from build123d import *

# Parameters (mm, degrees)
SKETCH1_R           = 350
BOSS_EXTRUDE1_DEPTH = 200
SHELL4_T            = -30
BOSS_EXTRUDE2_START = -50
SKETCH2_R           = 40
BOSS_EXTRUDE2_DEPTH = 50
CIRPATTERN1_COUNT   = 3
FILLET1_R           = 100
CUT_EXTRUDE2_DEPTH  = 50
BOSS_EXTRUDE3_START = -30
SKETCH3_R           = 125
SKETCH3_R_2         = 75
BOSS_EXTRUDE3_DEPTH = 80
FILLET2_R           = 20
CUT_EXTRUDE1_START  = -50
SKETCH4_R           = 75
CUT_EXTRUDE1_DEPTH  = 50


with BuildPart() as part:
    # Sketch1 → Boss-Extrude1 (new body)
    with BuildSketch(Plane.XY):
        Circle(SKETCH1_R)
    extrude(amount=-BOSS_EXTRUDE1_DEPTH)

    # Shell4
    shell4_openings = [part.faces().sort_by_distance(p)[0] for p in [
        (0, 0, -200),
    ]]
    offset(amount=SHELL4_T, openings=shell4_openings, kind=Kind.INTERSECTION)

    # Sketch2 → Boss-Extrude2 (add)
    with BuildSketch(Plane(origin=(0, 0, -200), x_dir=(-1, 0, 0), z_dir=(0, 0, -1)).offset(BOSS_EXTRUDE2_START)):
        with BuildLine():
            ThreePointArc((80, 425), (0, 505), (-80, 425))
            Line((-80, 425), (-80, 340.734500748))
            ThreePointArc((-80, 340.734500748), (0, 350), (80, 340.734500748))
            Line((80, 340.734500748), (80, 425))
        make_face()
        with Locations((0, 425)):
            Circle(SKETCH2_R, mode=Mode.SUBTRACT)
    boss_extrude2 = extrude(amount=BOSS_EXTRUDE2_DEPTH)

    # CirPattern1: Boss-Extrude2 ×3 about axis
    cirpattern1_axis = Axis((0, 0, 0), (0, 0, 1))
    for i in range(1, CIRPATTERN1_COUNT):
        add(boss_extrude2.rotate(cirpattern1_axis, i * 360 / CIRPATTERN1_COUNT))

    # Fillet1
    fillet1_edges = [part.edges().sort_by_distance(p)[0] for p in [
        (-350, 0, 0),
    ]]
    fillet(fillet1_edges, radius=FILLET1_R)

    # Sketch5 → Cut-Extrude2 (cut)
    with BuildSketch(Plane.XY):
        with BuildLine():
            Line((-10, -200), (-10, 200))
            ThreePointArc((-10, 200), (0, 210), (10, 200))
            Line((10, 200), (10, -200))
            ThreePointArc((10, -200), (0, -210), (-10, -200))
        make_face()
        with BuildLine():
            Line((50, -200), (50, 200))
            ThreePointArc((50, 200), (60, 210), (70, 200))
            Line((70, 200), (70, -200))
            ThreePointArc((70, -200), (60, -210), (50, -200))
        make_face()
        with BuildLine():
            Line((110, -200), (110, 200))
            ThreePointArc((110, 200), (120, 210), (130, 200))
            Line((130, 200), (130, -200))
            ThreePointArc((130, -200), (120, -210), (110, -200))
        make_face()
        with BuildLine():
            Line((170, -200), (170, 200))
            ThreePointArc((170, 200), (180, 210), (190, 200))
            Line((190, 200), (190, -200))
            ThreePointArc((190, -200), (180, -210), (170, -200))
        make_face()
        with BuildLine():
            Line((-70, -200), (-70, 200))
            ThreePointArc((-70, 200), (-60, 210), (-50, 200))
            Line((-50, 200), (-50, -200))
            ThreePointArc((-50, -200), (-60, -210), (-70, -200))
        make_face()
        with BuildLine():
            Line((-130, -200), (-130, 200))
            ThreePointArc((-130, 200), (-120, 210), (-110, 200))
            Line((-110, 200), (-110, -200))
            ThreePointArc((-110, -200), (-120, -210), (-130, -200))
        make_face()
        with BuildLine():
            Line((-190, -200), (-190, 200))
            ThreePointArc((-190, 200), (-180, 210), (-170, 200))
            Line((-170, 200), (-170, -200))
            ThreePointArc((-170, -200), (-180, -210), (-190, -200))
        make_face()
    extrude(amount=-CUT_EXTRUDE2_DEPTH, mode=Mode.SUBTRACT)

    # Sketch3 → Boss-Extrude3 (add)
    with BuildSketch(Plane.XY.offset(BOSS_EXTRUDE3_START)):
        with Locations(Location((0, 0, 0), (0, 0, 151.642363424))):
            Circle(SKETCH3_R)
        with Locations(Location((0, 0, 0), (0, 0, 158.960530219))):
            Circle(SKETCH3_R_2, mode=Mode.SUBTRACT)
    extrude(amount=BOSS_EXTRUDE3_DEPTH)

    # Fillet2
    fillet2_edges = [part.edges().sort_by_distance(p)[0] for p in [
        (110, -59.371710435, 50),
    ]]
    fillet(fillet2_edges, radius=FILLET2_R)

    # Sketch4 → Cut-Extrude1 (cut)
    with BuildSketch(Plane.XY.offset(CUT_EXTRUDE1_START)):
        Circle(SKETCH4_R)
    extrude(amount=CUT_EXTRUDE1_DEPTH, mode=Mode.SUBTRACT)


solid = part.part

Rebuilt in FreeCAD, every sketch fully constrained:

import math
import FreeCAD as App
import Part
import Sketcher
from FreeCAD import Vector


def edges_at(feature, points):
    """Names of the edges that pass closest to the given points."""
    edges = feature.Shape.Edges
    near = lambda p: min(range(len(edges)), key=lambda i: edges[i].distToShape(Part.Vertex(*p))[0])
    return sorted({f"Edge{near(p) + 1}" for p in points})


def faces_at(feature, points):
    """Names of the faces that lie closest to the given points."""
    faces = feature.Shape.Faces
    near = lambda p: min(range(len(faces)), key=lambda i: faces[i].distToShape(Part.Vertex(*p))[0])
    return sorted({f"Face{near(p) + 1}" for p in points})

doc = App.newDocument("Part")
params = doc.addObject("Spreadsheet::Sheet", "Params")
for row, (alias, value) in enumerate([
    ("sketch1_diameter", "700 mm"),
    ("pad1_length", "200 mm"),
    ("thickness_wall", "30 mm"),
    ("sketch2_diameter", "80 mm"),
    ("sketch2_radius", "80 mm"),
    ("sketch2_radius2", "350 mm"),
    ("pad2_length", "50 mm"),
    ("fillet_radius", "100 mm"),
    ("sketch3_radius", "10 mm"),
    ("sketch3_height", "400 mm"),
    ("pocket1_length", "50 mm"),
    ("sketch4_diameter", "250 mm"),
    ("sketch4_diameter2", "150 mm"),
    ("pad3_length", "80 mm"),
    ("fillet2_radius", "20 mm"),
    ("sketch5_diameter", "150 mm"),
    ("pocket2_length", "50 mm"),
], start=1):
    params.set(f"A{row}", alias)
    params.set(f"B{row}", "=" + value)
    params.setAlias(f"B{row}", alias)

body = doc.addObject("PartDesign::Body", "Body")

# Sketch on XY plane
sketch1 = body.newObject("Sketcher::SketchObject", "Sketch")
sketch1.AttachmentSupport = (doc.getObject("XY_Plane"), [""])
sketch1.MapMode = "FlatFace"
sketch1.addGeometry(Part.Circle(Vector(0, 0, 0), Vector(0, 0, 1), 350), False)
sketch1.addConstraint([
    Sketcher.Constraint("Coincident", 0, 3, -1, 1),
    Sketcher.Constraint("Diameter", 0, 700.0),
])
sketch1.setExpression("Constraints[1]", "Params.sketch1_diameter")
pad1 = body.newObject("PartDesign::Pad", "Pad")
pad1.Profile = sketch1
pad1.setExpression("Length", "Params.pad1_length")
pad1.Reversed = True
doc.recompute()

thickness = body.newObject("PartDesign::Thickness", "Thickness")
thickness.Base = (pad1, faces_at(pad1, [(0, 0, -200)]))
thickness.setExpression("Value", "Params.thickness_wall")
thickness.Reversed = True
thickness.Join = "Intersection"

# Sketch on XY plane
sketch2 = body.newObject("Sketcher::SketchObject", "Sketch001")
sketch2.AttachmentSupport = (doc.getObject("XY_Plane"), [""])
sketch2.MapMode = "FlatFace"
sketch2.AttachmentOffset = App.Placement(Vector(0, 0, -150), App.Rotation())
sketch2.addGeometry([
    Part.ArcOfCircle(Part.Circle(Vector(0, 425, 0), Vector(0, 0, 1), 80), math.radians(0), math.radians(180)),  # 0
    Part.LineSegment(Vector(80, 425, 0), Vector(80, 341, 0)),  # 1
    Part.ArcOfCircle(Part.Circle(Vector(0, 0, 0), Vector(0, 0, 1), 350), math.radians(77), math.radians(103)),  # 2
    Part.LineSegment(Vector(-80, 341, 0), Vector(-80, 425, 0)),  # 3
    Part.Circle(Vector(0, 425, 0), Vector(0, 0, 1), 40),  # 4
], False)
sketch2.addConstraint([
    Sketcher.Constraint("Tangent", 0, 1, 1, 1),
    Sketcher.Constraint("Coincident", 1, 2, 2, 1),
    Sketcher.Constraint("Coincident", 2, 2, 3, 1),
    Sketcher.Constraint("Tangent", 3, 2, 0, 2),
    Sketcher.Constraint("Vertical", 1),
    Sketcher.Constraint("Vertical", 3),
    Sketcher.Constraint("Coincident", 2, 3, -1, 1),
    Sketcher.Constraint("Coincident", 4, 3, 0, 3),
    Sketcher.Constraint("PointOnObject", 0, 3, -2),
    Sketcher.Constraint("Diameter", 4, 80.0),
    Sketcher.Constraint("Radius", 0, 80.0),
    Sketcher.Constraint("Radius", 2, 350.0),
    Sketcher.Constraint("DistanceY", -1, 1, 0, 3, 425.0),
])
sketch2.setExpression("Constraints[9]", "Params.sketch2_diameter")
sketch2.setExpression("Constraints[10]", "Params.sketch2_radius")
sketch2.setExpression("Constraints[11]", "Params.sketch2_radius2")
pad2 = body.newObject("PartDesign::Pad", "Pad001")
pad2.Profile = sketch2
pad2.setExpression("Length", "Params.pad2_length")
pad2.Reversed = True
doc.recompute()

polarpattern = body.newObject("PartDesign::PolarPattern", "PolarPattern")
polarpattern.Originals = [pad2]
polarpattern.Axis = (doc.getObject("Z_Axis"), [""])
polarpattern.Angle = 360
polarpattern.Occurrences = 3
body.Tip = polarpattern
doc.recompute()

fillet = body.newObject("PartDesign::Fillet", "Fillet")
fillet.Base = (polarpattern, edges_at(polarpattern, [(-350, 0, 0)]))
fillet.setExpression("Radius", "Params.fillet_radius")

# Sketch on XY plane
sketch3 = body.newObject("Sketcher::SketchObject", "Sketch002")
sketch3.AttachmentSupport = (doc.getObject("XY_Plane"), [""])
sketch3.MapMode = "FlatFace"
sketch3.addGeometry([
    Part.LineSegment(Vector(-10, 200, 0), Vector(-10, -200, 0)),  # 0
    Part.ArcOfCircle(Part.Circle(Vector(0, -200, 0), Vector(0, 0, 1), 10), math.radians(180), math.radians(360)),  # 1
    Part.LineSegment(Vector(10, -200, 0), Vector(10, 200, 0)),  # 2
    Part.ArcOfCircle(Part.Circle(Vector(0, 200, 0), Vector(0, 0, 1), 10), math.radians(0), math.radians(180)),  # 3
    Part.LineSegment(Vector(50, 200, 0), Vector(50, -200, 0)),  # 4
    Part.ArcOfCircle(Part.Circle(Vector(60, -200, 0), Vector(0, 0, 1), 10), math.radians(180), math.radians(360)),  # 5
    Part.LineSegment(Vector(70, -200, 0), Vector(70, 200, 0)),  # 6
    Part.ArcOfCircle(Part.Circle(Vector(60, 200, 0), Vector(0, 0, 1), 10), math.radians(0), math.radians(180)),  # 7
    Part.LineSegment(Vector(110, 200, 0), Vector(110, -200, 0)),  # 8
    Part.ArcOfCircle(Part.Circle(Vector(120, -200, 0), Vector(0, 0, 1), 10), math.radians(180), math.radians(360)),  # 9
    Part.LineSegment(Vector(130, -200, 0), Vector(130, 200, 0)),  # 10
    Part.ArcOfCircle(Part.Circle(Vector(120, 200, 0), Vector(0, 0, 1), 10), math.radians(0), math.radians(180)),  # 11
    Part.LineSegment(Vector(170, 200, 0), Vector(170, -200, 0)),  # 12
    Part.ArcOfCircle(Part.Circle(Vector(180, -200, 0), Vector(0, 0, 1), 10), math.radians(180), math.radians(360)),  # 13
    Part.LineSegment(Vector(190, -200, 0), Vector(190, 200, 0)),  # 14
    Part.ArcOfCircle(Part.Circle(Vector(180, 200, 0), Vector(0, 0, 1), 10), math.radians(0), math.radians(180)),  # 15
    Part.LineSegment(Vector(-70, 200, 0), Vector(-70, -200, 0)),  # 16
    Part.ArcOfCircle(Part.Circle(Vector(-60, -200, 0), Vector(0, 0, 1), 10), math.radians(180), math.radians(360)),  # 17
    Part.LineSegment(Vector(-50, -200, 0), Vector(-50, 200, 0)),  # 18
    Part.ArcOfCircle(Part.Circle(Vector(-60, 200, 0), Vector(0, 0, 1), 10), math.radians(0), math.radians(180)),  # 19
    Part.LineSegment(Vector(-130, 200, 0), Vector(-130, -200, 0)),  # 20
    Part.ArcOfCircle(Part.Circle(Vector(-120, -200, 0), Vector(0, 0, 1), 10), math.radians(180), math.radians(360)),  # 21
    Part.LineSegment(Vector(-110, -200, 0), Vector(-110, 200, 0)),  # 22
    Part.ArcOfCircle(Part.Circle(Vector(-120, 200, 0), Vector(0, 0, 1), 10), math.radians(0), math.radians(180)),  # 23
    Part.LineSegment(Vector(-190, 200, 0), Vector(-190, -200, 0)),  # 24
    Part.ArcOfCircle(Part.Circle(Vector(-180, -200, 0), Vector(0, 0, 1), 10), math.radians(180), math.radians(360)),  # 25
    Part.LineSegment(Vector(-170, -200, 0), Vector(-170, 200, 0)),  # 26
    Part.ArcOfCircle(Part.Circle(Vector(-180, 200, 0), Vector(0, 0, 1), 10), math.radians(0), math.radians(180)),  # 27
], False)
sketch3.addConstraint([
    Sketcher.Constraint("Tangent", 0, 2, 1, 1),
    Sketcher.Constraint("Tangent", 1, 2, 2, 1),
    Sketcher.Constraint("Tangent", 2, 2, 3, 1),
    Sketcher.Constraint("Tangent", 3, 2, 0, 1),
    Sketcher.Constraint("Tangent", 4, 2, 5, 1),
    Sketcher.Constraint("Tangent", 5, 2, 6, 1),
    Sketcher.Constraint("Tangent", 6, 2, 7, 1),
    Sketcher.Constraint("Tangent", 7, 2, 4, 1),
    Sketcher.Constraint("Tangent", 8, 2, 9, 1),
    Sketcher.Constraint("Tangent", 9, 2, 10, 1),
    Sketcher.Constraint("Tangent", 10, 2, 11, 1),
    Sketcher.Constraint("Tangent", 11, 2, 8, 1),
    Sketcher.Constraint("Tangent", 12, 2, 13, 1),
    Sketcher.Constraint("Tangent", 13, 2, 14, 1),
    Sketcher.Constraint("Tangent", 14, 2, 15, 1),
    Sketcher.Constraint("Tangent", 15, 2, 12, 1),
    Sketcher.Constraint("Tangent", 16, 2, 17, 1),
    Sketcher.Constraint("Tangent", 17, 2, 18, 1),
    Sketcher.Constraint("Tangent", 18, 2, 19, 1),
    Sketcher.Constraint("Tangent", 19, 2, 16, 1),
    Sketcher.Constraint("Tangent", 20, 2, 21, 1),
    Sketcher.Constraint("Tangent", 21, 2, 22, 1),
    Sketcher.Constraint("Tangent", 22, 2, 23, 1),
    Sketcher.Constraint("Tangent", 23, 2, 20, 1),
    Sketcher.Constraint("Tangent", 24, 2, 25, 1),
    Sketcher.Constraint("Tangent", 25, 2, 26, 1),
    Sketcher.Constraint("Tangent", 26, 2, 27, 1),
    Sketcher.Constraint("Tangent", 27, 2, 24, 1),
    Sketcher.Constraint("Vertical", 0),
    Sketcher.Constraint("Vertical", 2),
    Sketcher.Constraint("Vertical", 4),
    Sketcher.Constraint("Vertical", 6),
    Sketcher.Constraint("Vertical", 8),
    Sketcher.Constraint("Vertical", 10),
    Sketcher.Constraint("Vertical", 12),
    Sketcher.Constraint("Vertical", 14),
    Sketcher.Constraint("Vertical", 16),
    Sketcher.Constraint("Vertical", 18),
    Sketcher.Constraint("Vertical", 20),
    Sketcher.Constraint("Vertical", 22),
    Sketcher.Constraint("Vertical", 24),
    Sketcher.Constraint("Vertical", 26),
    Sketcher.Constraint("Equal", 3, 5),
    Sketcher.Constraint("Equal", 7, 9),
    Sketcher.Constraint("Equal", 11, 13),
    Sketcher.Constraint("Equal", 15, 17),
    Sketcher.Constraint("Equal", 19, 21),
    Sketcher.Constraint("Equal", 23, 25),
    Sketcher.Constraint("Symmetric", 1, 3, 3, 3, -1, 1),
    Sketcher.Constraint("Symmetric", 7, 3, 17, 3, -1, 1),
    Sketcher.Constraint("Symmetric", 11, 3, 21, 3, -1, 1),
    Sketcher.Constraint("Symmetric", 15, 3, 25, 3, -1, 1),
    Sketcher.Constraint("Horizontal", 1, 3, 5, 3),
    Sketcher.Constraint("Horizontal", 3, 3, 7, 3),
    Sketcher.Constraint("Horizontal", 5, 3, 9, 3),
    Sketcher.Constraint("Horizontal", 7, 3, 11, 3),
    Sketcher.Constraint("Horizontal", 9, 3, 13, 3),
    Sketcher.Constraint("Horizontal", 11, 3, 15, 3),
    Sketcher.Constraint("Horizontal", 15, 3, 19, 3),
    Sketcher.Constraint("Horizontal", 19, 3, 23, 3),
    Sketcher.Constraint("Horizontal", 23, 3, 27, 3),
    Sketcher.Constraint("Radius", 1, 10.0),
    Sketcher.Constraint("DistanceY", 0, 2, 0, 1, 400.0),
    Sketcher.Constraint("DistanceX", -1, 1, 5, 3, 60.0),
    Sketcher.Constraint("DistanceX", -1, 1, 9, 3, 120.0),
    Sketcher.Constraint("DistanceX", -1, 1, 13, 3, 180.0),
])
sketch3.setExpression("Constraints[61]", "Params.sketch3_radius")
sketch3.setExpression("Constraints[62]", "Params.sketch3_height")
pocket1 = body.newObject("PartDesign::Pocket", "Pocket")
pocket1.Profile = sketch3
pocket1.setExpression("Length", "Params.pocket1_length")

# Sketch on XY plane
sketch4 = body.newObject("Sketcher::SketchObject", "Sketch003")
sketch4.AttachmentSupport = (doc.getObject("XY_Plane"), [""])
sketch4.MapMode = "FlatFace"
sketch4.AttachmentOffset = App.Placement(Vector(0, 0, -30), App.Rotation())
sketch4.addGeometry([
    Part.Circle(Vector(0, 0, 0), Vector(0, 0, 1), 125),
    Part.Circle(Vector(0, 0, 0), Vector(0, 0, 1), 75),
], False)
sketch4.addConstraint([
    Sketcher.Constraint("Coincident", 0, 3, -1, 1),
    Sketcher.Constraint("Coincident", 1, 3, -1, 1),
    Sketcher.Constraint("Diameter", 0, 250.0),
    Sketcher.Constraint("Diameter", 1, 150.0),
])
sketch4.setExpression("Constraints[2]", "Params.sketch4_diameter")
sketch4.setExpression("Constraints[3]", "Params.sketch4_diameter2")
pad3 = body.newObject("PartDesign::Pad", "Pad002")
pad3.Profile = sketch4
pad3.setExpression("Length", "Params.pad3_length")
doc.recompute()

fillet2 = body.newObject("PartDesign::Fillet", "Fillet001")
fillet2.Base = (pad3, edges_at(pad3, [(110, -59.372, 50)]))
fillet2.setExpression("Radius", "Params.fillet2_radius")

# Sketch on XY plane
sketch5 = body.newObject("Sketcher::SketchObject", "Sketch004")
sketch5.AttachmentSupport = (doc.getObject("XY_Plane"), [""])
sketch5.MapMode = "FlatFace"
sketch5.AttachmentOffset = App.Placement(Vector(0, 0, -50), App.Rotation())
sketch5.addGeometry(Part.Circle(Vector(0, 0, 0), Vector(0, 0, 1), 75), False)
sketch5.addConstraint([
    Sketcher.Constraint("Coincident", 0, 3, -1, 1),
    Sketcher.Constraint("Diameter", 0, 150.0),
])
sketch5.setExpression("Constraints[1]", "Params.sketch5_diameter")
pocket2 = body.newObject("PartDesign::Pocket", "Pocket001")
pocket2.Profile = sketch5
pocket2.setExpression("Length", "Params.pocket2_length")
pocket2.Reversed = True

doc.recompute()
